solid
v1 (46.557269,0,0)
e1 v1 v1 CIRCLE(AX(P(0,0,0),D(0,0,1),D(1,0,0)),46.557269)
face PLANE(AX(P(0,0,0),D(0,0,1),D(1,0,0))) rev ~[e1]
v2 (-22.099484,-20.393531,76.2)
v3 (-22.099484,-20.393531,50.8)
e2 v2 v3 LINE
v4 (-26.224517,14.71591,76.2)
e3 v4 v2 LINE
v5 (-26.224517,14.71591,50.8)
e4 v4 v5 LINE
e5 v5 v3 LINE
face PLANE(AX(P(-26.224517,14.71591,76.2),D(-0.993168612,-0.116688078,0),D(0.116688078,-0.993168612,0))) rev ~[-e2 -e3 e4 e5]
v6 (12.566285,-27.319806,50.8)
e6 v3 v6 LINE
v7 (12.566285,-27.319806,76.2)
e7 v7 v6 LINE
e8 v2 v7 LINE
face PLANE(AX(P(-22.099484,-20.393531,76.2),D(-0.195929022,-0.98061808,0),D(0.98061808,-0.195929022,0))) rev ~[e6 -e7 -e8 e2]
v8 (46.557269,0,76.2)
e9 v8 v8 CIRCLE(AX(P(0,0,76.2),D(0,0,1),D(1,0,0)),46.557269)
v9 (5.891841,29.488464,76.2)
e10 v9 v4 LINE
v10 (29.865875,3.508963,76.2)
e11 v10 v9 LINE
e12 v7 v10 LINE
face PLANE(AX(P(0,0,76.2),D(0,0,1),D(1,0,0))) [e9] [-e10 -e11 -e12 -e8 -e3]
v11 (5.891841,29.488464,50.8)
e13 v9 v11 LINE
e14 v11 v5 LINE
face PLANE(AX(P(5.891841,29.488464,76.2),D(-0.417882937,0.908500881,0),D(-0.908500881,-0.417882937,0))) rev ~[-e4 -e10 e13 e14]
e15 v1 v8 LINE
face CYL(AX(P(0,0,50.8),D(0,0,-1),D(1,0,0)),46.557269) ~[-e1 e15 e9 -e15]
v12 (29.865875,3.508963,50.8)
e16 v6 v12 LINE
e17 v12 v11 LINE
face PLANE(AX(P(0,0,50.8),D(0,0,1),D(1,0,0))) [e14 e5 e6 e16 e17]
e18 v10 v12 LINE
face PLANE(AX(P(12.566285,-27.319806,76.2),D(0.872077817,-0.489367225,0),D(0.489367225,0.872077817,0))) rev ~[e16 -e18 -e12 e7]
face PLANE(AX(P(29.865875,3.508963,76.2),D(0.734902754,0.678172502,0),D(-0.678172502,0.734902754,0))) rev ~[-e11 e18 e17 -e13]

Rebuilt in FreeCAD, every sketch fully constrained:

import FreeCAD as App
import Part
import Sketcher
Q = App.Units.Quantity


def add_polygon(sketch, points):
    """Adds a closed chain of lines whose ends are joined by coincident constraints."""
    first, n = sketch.GeometryCount, len(points)
    for a, b in zip(points, points[1:] + points[:1]):
        sketch.addGeometry(Part.LineSegment(App.Vector(*a, 0), App.Vector(*b, 0)), False)
    for i in range(n):
        sketch.addConstraint(Sketcher.Constraint("Coincident", first + i, 2, first + (i + 1) % n, 1))

doc = App.newDocument("Part")
body = doc.addObject("PartDesign::Body", "Body")

# Sketch on XY plane
sketch1 = body.newObject("Sketcher::SketchObject", "Sketch")
sketch1.AttachmentSupport = (doc.getObject("XY_Plane"), [""])
sketch1.MapMode = "FlatFace"
sketch1.addGeometry(Part.Circle(App.Vector(0, 0, 0), App.Vector(0, 0, 1), 46.557269), False)
sketch1.addConstraint([
    Sketcher.Constraint("Coincident", 0, 3, -1, 1),
    Sketcher.Constraint("Diameter", 0, 93.114537),
])
pad1 = body.newObject("PartDesign::Pad", "Pad")
pad1.Profile = sketch1
pad1.Length = Q("1 in")

# Sketch on XY plane
sketch2 = body.newObject("Sketcher::SketchObject", "Sketch001")
sketch2.AttachmentSupport = (doc.getObject("XY_Plane"), [""])
sketch2.MapMode = "FlatFace"
sketch2.AttachmentOffset = App.Placement(App.Vector(0, 0, 1 * 25.4), App.Rotation())
sketch2.addGeometry(Part.Circle(App.Vector(0, 0, 0), App.Vector(0, 0, 1), 46.557269), False)
sketch2.addConstraint([
    Sketcher.Constraint("Coincident", 0, 3, -1, 1),
    Sketcher.Constraint("Diameter", 0, 93.114537),
])
pad2 = body.newObject("PartDesign::Pad", "Pad001")
pad2.Profile = sketch2
pad2.Type = "TwoLengths"
pad2.Length = Q("1 in")
pad2.Length2 = Q("1 in")

# Sketch on XY plane
sketch3 = body.newObject("Sketcher::SketchObject", "Sketch002")
sketch3.AttachmentSupport = (doc.getObject("XY_Plane"), [""])
sketch3.MapMode = "FlatFace"
sketch3.AttachmentOffset = App.Placement(App.Vector(0, 0, 2 * 25.4), App.Rotation())
sketch3.addGeometry(Part.Circle(App.Vector(0, 0, 0), App.Vector(0, 0, 1), 46.557269), False)
sketch3.addConstraint([
    Sketcher.Constraint("Coincident", 0, 3, -1, 1),
    Sketcher.Constraint("Diameter", 0, 93.114537),
])
pad3 = body.newObject("PartDesign::Pad", "Pad002")
pad3.Profile = sketch3
pad3.Length = Q("1 in")

# Sketch on XY plane
sketch4 = body.newObject("Sketcher::SketchObject", "Sketch003")
sketch4.AttachmentSupport = (doc.getObject("XY_Plane"), [""])
sketch4.MapMode = "FlatFace"
sketch4.AttachmentOffset = App.Placement(App.Vector(0, 0, 3 * 25.4), App.Rotation())
add_polygon(sketch4, [(12.566285, -27.319806), (29.865875, 3.508963), (5.891841, 29.488464), (-26.224517, 14.71591), (-22.099484, -20.393531)])  # lines 0-4
sketch4.addConstraint([
    Sketcher.Constraint("Equal", 0, 1),
    Sketcher.Constraint("Equal", 1, 2),
    Sketcher.Constraint("Equal", 2, 3),
    Sketcher.Constraint("Equal", 3, 4),
    Sketcher.Constraint("DistanceY", 0, 2, 1, 2, 25.979501),
    Sketcher.Constraint("DistanceX", 2, 2, 4, 2, 38.790801),
    Sketcher.Constraint("DistanceX", -1, 1, 1, 2, 5.891841),
    Sketcher.Constraint("DistanceY", -1, 1, 2, 2, 14.71591),
    Sketcher.Constraint("DistanceY", 3, 2, -1, 1, 20.393531),
    Sketcher.Constraint("DistanceX", 2, 2, 0, 2, 56.090391),
])
pocket1 = body.newObject("PartDesign::Pocket", "Pocket")
pocket1.Profile = sketch4
pocket1.Length = Q("1 in")

# Sketch on XY plane
sketch5 = body.newObject("Sketcher::SketchObject", "Sketch004")
sketch5.AttachmentSupport = (doc.getObject("XY_Plane"), [""])
sketch5.MapMode = "FlatFace"
add_polygon(sketch5, [(-22.099484, -20.393531), (12.566285, -27.319806), (29.865875, 3.508963), (5.891841, 29.488464), (-26.224517, 14.71591)])  # lines 0-4
sketch5.addConstraint([
    Sketcher.Constraint("Equal", 0, 1),
    Sketcher.Constraint("Equal", 1, 2),
    Sketcher.Constraint("Equal", 2, 3),
    Sketcher.Constraint("Equal", 3, 4),
    Sketcher.Constraint("DistanceY", 1, 2, 2, 2, 25.979501),
    Sketcher.Constraint("DistanceX", 3, 2, 0, 2, 38.790801),
    Sketcher.Constraint("DistanceX", -1, 1, 2, 2, 5.891841),
    Sketcher.Constraint("DistanceY", -1, 1, 3, 2, 14.71591),
    Sketcher.Constraint("DistanceY", 4, 2, -1, 1, 20.393531),
    Sketcher.Constraint("DistanceX", 0, 2, 1, 2, 17.29959),
])
pocket2 = body.newObject("PartDesign::Pocket", "Pocket001")
pocket2.Profile = sketch5
pocket2.Length = Q("1 in")

doc.recompute()
